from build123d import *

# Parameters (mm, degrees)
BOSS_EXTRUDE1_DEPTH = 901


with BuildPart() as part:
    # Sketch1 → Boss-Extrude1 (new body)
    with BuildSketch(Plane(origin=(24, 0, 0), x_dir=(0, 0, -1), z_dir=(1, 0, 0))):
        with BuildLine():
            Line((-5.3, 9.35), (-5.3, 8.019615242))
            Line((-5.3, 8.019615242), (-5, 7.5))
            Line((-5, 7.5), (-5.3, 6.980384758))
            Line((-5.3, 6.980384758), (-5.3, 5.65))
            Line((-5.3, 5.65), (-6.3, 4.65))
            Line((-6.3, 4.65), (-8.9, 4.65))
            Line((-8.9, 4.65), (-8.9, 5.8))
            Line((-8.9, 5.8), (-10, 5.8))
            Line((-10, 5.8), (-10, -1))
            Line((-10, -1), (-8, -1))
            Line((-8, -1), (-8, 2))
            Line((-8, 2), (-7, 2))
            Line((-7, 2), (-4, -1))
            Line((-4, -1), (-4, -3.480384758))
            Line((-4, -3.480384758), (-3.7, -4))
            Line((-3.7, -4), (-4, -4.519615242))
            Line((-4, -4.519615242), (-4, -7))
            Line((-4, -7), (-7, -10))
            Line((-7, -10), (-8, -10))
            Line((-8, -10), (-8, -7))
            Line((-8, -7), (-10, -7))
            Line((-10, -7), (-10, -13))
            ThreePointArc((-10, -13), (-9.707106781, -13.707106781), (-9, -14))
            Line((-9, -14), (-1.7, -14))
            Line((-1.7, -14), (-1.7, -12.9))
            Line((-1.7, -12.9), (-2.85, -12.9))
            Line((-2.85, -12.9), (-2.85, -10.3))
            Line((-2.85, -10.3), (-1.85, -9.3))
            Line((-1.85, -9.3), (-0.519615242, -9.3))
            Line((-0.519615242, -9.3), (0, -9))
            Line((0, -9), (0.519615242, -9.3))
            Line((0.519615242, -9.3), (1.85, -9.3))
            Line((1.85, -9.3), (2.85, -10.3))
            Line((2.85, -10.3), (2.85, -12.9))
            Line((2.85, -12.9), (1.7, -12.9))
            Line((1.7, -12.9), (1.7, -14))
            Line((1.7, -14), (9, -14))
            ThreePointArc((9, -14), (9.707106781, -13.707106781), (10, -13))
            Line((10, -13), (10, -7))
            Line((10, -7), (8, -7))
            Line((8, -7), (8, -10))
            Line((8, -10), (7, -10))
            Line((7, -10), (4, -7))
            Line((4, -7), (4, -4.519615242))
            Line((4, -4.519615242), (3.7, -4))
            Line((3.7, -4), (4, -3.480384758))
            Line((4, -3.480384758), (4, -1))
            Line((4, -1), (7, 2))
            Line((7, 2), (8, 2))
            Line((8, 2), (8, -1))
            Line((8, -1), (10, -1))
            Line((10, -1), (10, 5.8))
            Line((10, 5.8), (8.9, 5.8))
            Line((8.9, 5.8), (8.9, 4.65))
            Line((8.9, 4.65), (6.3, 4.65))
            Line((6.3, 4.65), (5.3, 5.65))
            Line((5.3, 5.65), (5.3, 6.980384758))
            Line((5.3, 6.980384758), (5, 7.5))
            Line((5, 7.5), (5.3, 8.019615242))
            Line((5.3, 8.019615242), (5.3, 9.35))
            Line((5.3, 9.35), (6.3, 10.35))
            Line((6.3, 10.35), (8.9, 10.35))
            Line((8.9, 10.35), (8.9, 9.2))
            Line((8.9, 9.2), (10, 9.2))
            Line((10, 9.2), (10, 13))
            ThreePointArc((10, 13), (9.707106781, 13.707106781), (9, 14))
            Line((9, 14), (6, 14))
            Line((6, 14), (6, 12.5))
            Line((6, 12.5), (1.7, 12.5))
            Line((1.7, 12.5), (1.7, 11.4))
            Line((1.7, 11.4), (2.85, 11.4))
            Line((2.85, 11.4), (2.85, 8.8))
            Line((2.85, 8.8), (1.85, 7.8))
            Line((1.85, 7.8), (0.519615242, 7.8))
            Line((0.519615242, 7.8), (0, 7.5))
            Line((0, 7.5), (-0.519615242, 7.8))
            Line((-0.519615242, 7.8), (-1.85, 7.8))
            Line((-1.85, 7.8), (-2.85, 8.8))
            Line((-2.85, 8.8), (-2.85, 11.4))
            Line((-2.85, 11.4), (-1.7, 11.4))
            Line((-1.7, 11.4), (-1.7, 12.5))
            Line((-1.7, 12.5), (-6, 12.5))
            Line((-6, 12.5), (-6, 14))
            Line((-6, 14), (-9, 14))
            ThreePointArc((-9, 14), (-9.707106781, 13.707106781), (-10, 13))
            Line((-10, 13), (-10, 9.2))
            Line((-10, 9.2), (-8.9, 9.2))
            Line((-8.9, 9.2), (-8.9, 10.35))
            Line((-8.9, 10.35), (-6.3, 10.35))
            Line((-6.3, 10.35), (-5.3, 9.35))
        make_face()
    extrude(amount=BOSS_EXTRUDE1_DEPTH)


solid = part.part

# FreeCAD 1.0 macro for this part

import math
import FreeCAD as App
import Part
import Sketcher
Q = App.Units.Quantity

doc = App.newDocument("Part")
body = doc.addObject("PartDesign::Body", "Body")

# Sketch on YZ plane
sketch1 = body.newObject("Sketcher::SketchObject", "Sketch")
sketch1.AttachmentSupport = (doc.getObject("YZ_Plane"), [""])
sketch1.MapMode = "FlatFace"
sketch1.AttachmentOffset = App.Placement(App.Vector(0, 0, 24), App.Rotation())
sketch1.addGeometry(Part.LineSegment(App.Vector(9.3, 5.3, 0), App.Vector(8, 5.3, 0)), False)
sketch1.addGeometry(Part.LineSegment(App.Vector(8, 5.3, 0), App.Vector(7.5, 5, 0)), False)
sketch1.addGeometry(Part.LineSegment(App.Vector(7.5, 5, 0), App.Vector(7, 5.3, 0)), False)
sketch1.addGeometry(Part.LineSegment(App.Vector(7, 5.3, 0), App.Vector(5.7, 5.3, 0)), False)
sketch1.addGeometry(Part.LineSegment(App.Vector(5.7, 5.3, 0), App.Vector(4.7, 6.3, 0)), False)
sketch1.addGeometry(Part.LineSegment(App.Vector(4.7, 6.3, 0), App.Vector(4.7, 8.9, 0)), False)
sketch1.addGeometry(Part.LineSegment(App.Vector(4.7, 8.9, 0), App.Vector(5.8, 8.9, 0)), False)
sketch1.addGeometry(Part.LineSegment(App.Vector(5.8, 8.9, 0), App.Vector(5.8, 10, 0)), False)
sketch1.addGeometry(Part.LineSegment(App.Vector(5.8, 10, 0), App.Vector(-1, 10, 0)), False)
sketch1.addGeometry(Part.LineSegment(App.Vector(-1, 10, 0), App.Vector(-1, 8, 0)), False)
sketch1.addGeometry(Part.LineSegment(App.Vector(-1, 8, 0), App.Vector(2, 8, 0)), False)
sketch1.addGeometry(Part.LineSegment(App.Vector(2, 8, 0), App.Vector(2, 7, 0)), False)
sketch1.addGeometry(Part.LineSegment(App.Vector(2, 7, 0), App.Vector(-1, 4, 0)), False)
sketch1.addGeometry(Part.LineSegment(App.Vector(-1, 4, 0), App.Vector(-3.5, 4, 0)), False)
sketch1.addGeometry(Part.LineSegment(App.Vector(-3.5, 4, 0), App.Vector(-4, 3.7, 0)), False)
sketch1.addGeometry(Part.LineSegment(App.Vector(-4, 3.7, 0), App.Vector(-4.5, 4, 0)), False)
sketch1.addGeometry(Part.LineSegment(App.Vector(-4.5, 4, 0), App.Vector(-7, 4, 0)), False)
sketch1.addGeometry(Part.LineSegment(App.Vector(-7, 4, 0), App.Vector(-10, 7, 0)), False)
sketch1.addGeometry(Part.LineSegment(App.Vector(-10, 7, 0), App.Vector(-10, 8, 0)), False)
sketch1.addGeometry(Part.LineSegment(App.Vector(-10, 8, 0), App.Vector(-7, 8, 0)), False)
sketch1.addGeometry(Part.LineSegment(App.Vector(-7, 8, 0), App.Vector(-7, 10, 0)), False)
sketch1.addGeometry(Part.LineSegment(App.Vector(-7, 10, 0), App.Vector(-13, 10, 0)), False)
sketch1.addGeometry(Part.ArcOfCircle(Part.Circle(App.Vector(-13, 9, 0), App.Vector(0, 0, 1), 1), math.radians(90), math.radians(180)), False)
sketch1.addGeometry(Part.LineSegment(App.Vector(-14, 9, 0), App.Vector(-14, 1.7, 0)), False)
sketch1.addGeometry(Part.LineSegment(App.Vector(-14, 1.7, 0), App.Vector(-12.9, 1.7, 0)), False)
sketch1.addGeometry(Part.LineSegment(App.Vector(-12.9, 1.7, 0), App.Vector(-12.9, 2.9, 0)), False)
sketch1.addGeometry(Part.LineSegment(App.Vector(-12.9, 2.9, 0), App.Vector(-10.3, 2.9, 0)), False)
sketch1.addGeometry(Part.LineSegment(App.Vector(-10.3, 2.9, 0), App.Vector(-9.3, 1.9, 0)), False)
sketch1.addGeometry(Part.LineSegment(App.Vector(-9.3, 1.9, 0), App.Vector(-9.3, 0.5, 0)), False)
sketch1.addGeometry(Part.LineSegment(App.Vector(-9.3, 0.5, 0), App.Vector(-9, 0, 0)), False)
sketch1.addGeometry(Part.LineSegment(App.Vector(-9, 0, 0), App.Vector(-9.3, -0.5, 0)), False)
sketch1.addGeometry(Part.LineSegment(App.Vector(-9.3, -0.5, 0), App.Vector(-9.3, -1.9, 0)), False)
sketch1.addGeometry(Part.LineSegment(App.Vector(-9.3, -1.9, 0), App.Vector(-10.3, -2.9, 0)), False)
sketch1.addGeometry(Part.LineSegment(App.Vector(-10.3, -2.9, 0), App.Vector(-12.9, -2.9, 0)), False)
sketch1.addGeometry(Part.LineSegment(App.Vector(-12.9, -2.9, 0), App.Vector(-12.9, -1.7, 0)), False)
sketch1.addGeometry(Part.LineSegment(App.Vector(-12.9, -1.7, 0), App.Vector(-14, -1.7, 0)), False)
sketch1.addGeometry(Part.LineSegment(App.Vector(-14, -1.7, 0), App.Vector(-14, -9, 0)), False)
sketch1.addGeometry(Part.ArcOfCircle(Part.Circle(App.Vector(-13, -9, 0), App.Vector(0, 0, 1), 1), math.radians(-180), math.radians(-90)), False)
sketch1.addGeometry(Part.LineSegment(App.Vector(-13, -10, 0), App.Vector(-7, -10, 0)), False)
sketch1.addGeometry(Part.LineSegment(App.Vector(-7, -10, 0), App.Vector(-7, -8, 0)), False)
sketch1.addGeometry(Part.LineSegment(App.Vector(-7, -8, 0), App.Vector(-10, -8, 0)), False)
sketch1.addGeometry(Part.LineSegment(App.Vector(-10, -8, 0), App.Vector(-10, -7, 0)), False)
sketch1.addGeometry(Part.LineSegment(App.Vector(-10, -7, 0), App.Vector(-7, -4, 0)), False)
sketch1.addGeometry(Part.LineSegment(App.Vector(-7, -4, 0), App.Vector(-4.5, -4, 0)), False)
sketch1.addGeometry(Part.LineSegment(App.Vector(-4.5, -4, 0), App.Vector(-4, -3.7, 0)), False)
sketch1.addGeometry(Part.LineSegment(App.Vector(-4, -3.7, 0), App.Vector(-3.5, -4, 0)), False)
sketch1.addGeometry(Part.LineSegment(App.Vector(-3.5, -4, 0), App.Vector(-1, -4, 0)), False)
sketch1.addGeometry(Part.LineSegment(App.Vector(-1, -4, 0), App.Vector(2, -7, 0)), False)
sketch1.addGeometry(Part.LineSegment(App.Vector(2, -7, 0), App.Vector(2, -8, 0)), False)
sketch1.addGeometry(Part.LineSegment(App.Vector(2, -8, 0), App.Vector(-1, -8, 0)), False)
sketch1.addGeometry(Part.LineSegment(App.Vector(-1, -8, 0), App.Vector(-1, -10, 0)), False)
sketch1.addGeometry(Part.LineSegment(App.Vector(-1, -10, 0), App.Vector(5.8, -10, 0)), False)
sketch1.addGeometry(Part.LineSegment(App.Vector(5.8, -10, 0), App.Vector(5.8, -8.9, 0)), False)
sketch1.addGeometry(Part.LineSegment(App.Vector(5.8, -8.9, 0), App.Vector(4.7, -8.9, 0)), False)
sketch1.addGeometry(Part.LineSegment(App.Vector(4.7, -8.9, 0), App.Vector(4.7, -6.3, 0)), False)
sketch1.addGeometry(Part.LineSegment(App.Vector(4.7, -6.3, 0), App.Vector(5.7, -5.3, 0)), False)
sketch1.addGeometry(Part.LineSegment(App.Vector(5.7, -5.3, 0), App.Vector(7, -5.3, 0)), False)
sketch1.addGeometry(Part.LineSegment(App.Vector(7, -5.3, 0), App.Vector(7.5, -5, 0)), False)
sketch1.addGeometry(Part.LineSegment(App.Vector(7.5, -5, 0), App.Vector(8, -5.3, 0)), False)
sketch1.addGeometry(Part.LineSegment(App.Vector(8, -5.3, 0), App.Vector(9.3, -5.3, 0)), False)
sketch1.addGeometry(Part.LineSegment(App.Vector(9.3, -5.3, 0), App.Vector(10.3, -6.3, 0)), False)
sketch1.addGeometry(Part.LineSegment(App.Vector(10.3, -6.3, 0), App.Vector(10.3, -8.9, 0)), False)
sketch1.addGeometry(Part.LineSegment(App.Vector(10.3, -8.9, 0), App.Vector(9.2, -8.9, 0)), False)
sketch1.addGeometry(Part.LineSegment(App.Vector(9.2, -8.9, 0), App.Vector(9.2, -10, 0)), False)
sketch1.addGeometry(Part.LineSegment(App.Vector(9.2, -10, 0), App.Vector(13, -10, 0)), False)
sketch1.addGeometry(Part.ArcOfCircle(Part.Circle(App.Vector(13, -9, 0), App.Vector(0, 0, 1), 1), math.radians(-90), math.radians(0)), False)
sketch1.addGeometry(Part.LineSegment(App.Vector(14, -9, 0), App.Vector(14, -6, 0)), False)
sketch1.addGeometry(Part.LineSegment(App.Vector(14, -6, 0), App.Vector(12.5, -6, 0)), False)
sketch1.addGeometry(Part.LineSegment(App.Vector(12.5, -6, 0), App.Vector(12.5, -1.7, 0)), False)
sketch1.addGeometry(Part.LineSegment(App.Vector(12.5, -1.7, 0), App.Vector(11.4, -1.7, 0)), False)
sketch1.addGeometry(Part.LineSegment(App.Vector(11.4, -1.7, 0), App.Vector(11.4, -2.9, 0)), False)
sketch1.addGeometry(Part.LineSegment(App.Vector(11.4, -2.9, 0), App.Vector(8.8, -2.9, 0)), False)
sketch1.addGeometry(Part.LineSegment(App.Vector(8.8, -2.9, 0), App.Vector(7.8, -1.9, 0)), False)
sketch1.addGeometry(Part.LineSegment(App.Vector(7.8, -1.9, 0), App.Vector(7.8, -0.5, 0)), False)
sketch1.addGeometry(Part.LineSegment(App.Vector(7.8, -0.5, 0), App.Vector(7.5, 0, 0)), False)
sketch1.addGeometry(Part.LineSegment(App.Vector(7.5, 0, 0), App.Vector(7.8, 0.5, 0)), False)
sketch1.addGeometry(Part.LineSegment(App.Vector(7.8, 0.5, 0), App.Vector(7.8, 1.9, 0)), False)
sketch1.addGeometry(Part.LineSegment(App.Vector(7.8, 1.9, 0), App.Vector(8.8, 2.9, 0)), False)
sketch1.addGeometry(Part.LineSegment(App.Vector(8.8, 2.9, 0), App.Vector(11.4, 2.9, 0)), False)
sketch1.addGeometry(Part.LineSegment(App.Vector(11.4, 2.9, 0), App.Vector(11.4, 1.7, 0)), False)
sketch1.addGeometry(Part.LineSegment(App.Vector(11.4, 1.7, 0), App.Vector(12.5, 1.7, 0)), False)
sketch1.addGeometry(Part.LineSegment(App.Vector(12.5, 1.7, 0), App.Vector(12.5, 6, 0)), False)
sketch1.addGeometry(Part.LineSegment(App.Vector(12.5, 6, 0), App.Vector(14, 6, 0)), False)
sketch1.addGeometry(Part.LineSegment(App.Vector(14, 6, 0), App.Vector(14, 9, 0)), False)
sketch1.addGeometry(Part.ArcOfCircle(Part.Circle(App.Vector(13, 9, 0), App.Vector(0, 0, 1), 1), math.radians(0), math.radians(90)), False)
sketch1.addGeometry(Part.LineSegment(App.Vector(13, 10, 0), App.Vector(9.2, 10, 0)), False)
sketch1.addGeometry(Part.LineSegment(App.Vector(9.2, 10, 0), App.Vector(9.2, 8.9, 0)), False)
sketch1.addGeometry(Part.LineSegment(App.Vector(9.2, 8.9, 0), App.Vector(10.3, 8.9, 0)), False)
sketch1.addGeometry(Part.LineSegment(App.Vector(10.3, 8.9, 0), App.Vector(10.3, 6.3, 0)), False)
sketch1.addGeometry(Part.LineSegment(App.Vector(10.3, 6.3, 0), App.Vector(9.3, 5.3, 0)), False)
sketch1.addConstraint(Sketcher.Constraint("Coincident", 0, 2, 1, 1))
sketch1.addConstraint(Sketcher.Constraint("Coincident", 1, 2, 2, 1))
sketch1.addConstraint(Sketcher.Constraint("Coincident", 2, 2, 3, 1))
sketch1.addConstraint(Sketcher.Constraint("Coincident", 3, 2, 4, 1))
sketch1.addConstraint(Sketcher.Constraint("Coincident", 4, 2, 5, 1))
sketch1.addConstraint(Sketcher.Constraint("Coincident", 5, 2, 6, 1))
sketch1.addConstraint(Sketcher.Constraint("Coincident", 6, 2, 7, 1))
sketch1.addConstraint(Sketcher.Constraint("Coincident", 7, 2, 8, 1))
sketch1.addConstraint(Sketcher.Constraint("Coincident", 8, 2, 9, 1))
sketch1.addConstraint(Sketcher.Constraint("Coincident", 9, 2, 10, 1))
sketch1.addConstraint(Sketcher.Constraint("Coincident", 10, 2, 11, 1))
sketch1.addConstraint(Sketcher.Constraint("Coincident", 11, 2, 12, 1))
sketch1.addConstraint(Sketcher.Constraint("Coincident", 12, 2, 13, 1))
sketch1.addConstraint(Sketcher.Constraint("Coincident", 13, 2, 14, 1))
sketch1.addConstraint(Sketcher.Constraint("Coincident", 14, 2, 15, 1))
sketch1.addConstraint(Sketcher.Constraint("Coincident", 15, 2, 16, 1))
sketch1.addConstraint(Sketcher.Constraint("Coincident", 16, 2, 17, 1))
sketch1.addConstraint(Sketcher.Constraint("Coincident", 17, 2, 18, 1))
sketch1.addConstraint(Sketcher.Constraint("Coincident", 18, 2, 19, 1))
sketch1.addConstraint(Sketcher.Constraint("Coincident", 19, 2, 20, 1))
sketch1.addConstraint(Sketcher.Constraint("Coincident", 20, 2, 21, 1))
sketch1.addConstraint(Sketcher.Constraint("Tangent", 21, 2, 22, 1))
sketch1.addConstraint(Sketcher.Constraint("Tangent", 22, 2, 23, 1))
sketch1.addConstraint(Sketcher.Constraint("Coincident", 23, 2, 24, 1))
sketch1.addConstraint(Sketcher.Constraint("Coincident", 24, 2, 25, 1))
sketch1.addConstraint(Sketcher.Constraint("Coincident", 25, 2, 26, 1))
sketch1.addConstraint(Sketcher.Constraint("Coincident", 26, 2, 27, 1))
sketch1.addConstraint(Sketcher.Constraint("Coincident", 27, 2, 28, 1))
sketch1.addConstraint(Sketcher.Constraint("Coincident", 28, 2, 29, 1))
sketch1.addConstraint(Sketcher.Constraint("Coincident", 29, 2, 30, 1))
sketch1.addConstraint(Sketcher.Constraint("Coincident", 30, 2, 31, 1))
sketch1.addConstraint(Sketcher.Constraint("Coincident", 31, 2, 32, 1))
sketch1.addConstraint(Sketcher.Constraint("Coincident", 32, 2, 33, 1))
sketch1.addConstraint(Sketcher.Constraint("Coincident", 33, 2, 34, 1))
sketch1.addConstraint(Sketcher.Constraint("Coincident", 34, 2, 35, 1))
sketch1.addConstraint(Sketcher.Constraint("Coincident", 35, 2, 36, 1))
sketch1.addConstraint(Sketcher.Constraint("Tangent", 36, 2, 37, 1))
sketch1.addConstraint(Sketcher.Constraint("Tangent", 37, 2, 38, 1))
sketch1.addConstraint(Sketcher.Constraint("Coincident", 38, 2, 39, 1))
sketch1.addConstraint(Sketcher.Constraint("Coincident", 39, 2, 40, 1))
sketch1.addConstraint(Sketcher.Constraint("Coincident", 40, 2, 41, 1))
sketch1.addConstraint(Sketcher.Constraint("Coincident", 41, 2, 42, 1))
sketch1.addConstraint(Sketcher.Constraint("Coincident", 42, 2, 43, 1))
sketch1.addConstraint(Sketcher.Constraint("Coincident", 43, 2, 44, 1))
sketch1.addConstraint(Sketcher.Constraint("Coincident", 44, 2, 45, 1))
sketch1.addConstraint(Sketcher.Constraint("Coincident", 45, 2, 46, 1))
sketch1.addConstraint(Sketcher.Constraint("Coincident", 46, 2, 47, 1))
sketch1.addConstraint(Sketcher.Constraint("Coincident", 47, 2, 48, 1))
sketch1.addConstraint(Sketcher.Constraint("Coincident", 48, 2, 49, 1))
sketch1.addConstraint(Sketcher.Constraint("Coincident", 49, 2, 50, 1))
sketch1.addConstraint(Sketcher.Constraint("Coincident", 50, 2, 51, 1))
sketch1.addConstraint(Sketcher.Constraint("Coincident", 51, 2, 52, 1))
sketch1.addConstraint(Sketcher.Constraint("Coincident", 52, 2, 53, 1))
sketch1.addConstraint(Sketcher.Constraint("Coincident", 53, 2, 54, 1))
sketch1.addConstraint(Sketcher.Constraint("Coincident", 54, 2, 55, 1))
sketch1.addConstraint(Sketcher.Constraint("Coincident", 55, 2, 56, 1))
sketch1.addConstraint(Sketcher.Constraint("Coincident", 56, 2, 57, 1))
sketch1.addConstraint(Sketcher.Constraint("Coincident", 57, 2, 58, 1))
sketch1.addConstraint(Sketcher.Constraint("Coincident", 58, 2, 59, 1))
sketch1.addConstraint(Sketcher.Constraint("Coincident", 59, 2, 60, 1))
sketch1.addConstraint(Sketcher.Constraint("Coincident", 60, 2, 61, 1))
sketch1.addConstraint(Sketcher.Constraint("Coincident", 61, 2, 62, 1))
sketch1.addConstraint(Sketcher.Constraint("Coincident", 62, 2, 63, 1))
sketch1.addConstraint(Sketcher.Constraint("Coincident", 63, 2, 64, 1))
sketch1.addConstraint(Sketcher.Constraint("Tangent", 64, 2, 65, 1))
sketch1.addConstraint(Sketcher.Constraint("Tangent", 65, 2, 66, 1))
sketch1.addConstraint(Sketcher.Constraint("Coincident", 66, 2, 67, 1))
sketch1.addConstraint(Sketcher.Constraint("Coincident", 67, 2, 68, 1))
sketch1.addConstraint(Sketcher.Constraint("Coincident", 68, 2, 69, 1))
sketch1.addConstraint(Sketcher.Constraint("Coincident", 69, 2, 70, 1))
sketch1.addConstraint(Sketcher.Constraint("Coincident", 70, 2, 71, 1))
sketch1.addConstraint(Sketcher.Constraint("Coincident", 71, 2, 72, 1))
sketch1.addConstraint(Sketcher.Constraint("Coincident", 72, 2, 73, 1))
sketch1.addConstraint(Sketcher.Constraint("Coincident", 73, 2, 74, 1))
sketch1.addConstraint(Sketcher.Constraint("Coincident", 74, 2, 75, 1))
sketch1.addConstraint(Sketcher.Constraint("Coincident", 75, 2, 76, 1))
sketch1.addConstraint(Sketcher.Constraint("Coincident", 76, 2, 77, 1))
sketch1.addConstraint(Sketcher.Constraint("Coincident", 77, 2, 78, 1))
sketch1.addConstraint(Sketcher.Constraint("Coincident", 78, 2, 79, 1))
sketch1.addConstraint(Sketcher.Constraint("Coincident", 79, 2, 80, 1))
sketch1.addConstraint(Sketcher.Constraint("Coincident", 80, 2, 81, 1))
sketch1.addConstraint(Sketcher.Constraint("Coincident", 81, 2, 82, 1))
sketch1.addConstraint(Sketcher.Constraint("Coincident", 82, 2, 83, 1))
sketch1.addConstraint(Sketcher.Constraint("Tangent", 83, 2, 84, 1))
sketch1.addConstraint(Sketcher.Constraint("Tangent", 84, 2, 85, 1))
sketch1.addConstraint(Sketcher.Constraint("Coincident", 85, 2, 86, 1))
sketch1.addConstraint(Sketcher.Constraint("Coincident", 86, 2, 87, 1))
sketch1.addConstraint(Sketcher.Constraint("Coincident", 87, 2, 88, 1))
sketch1.addConstraint(Sketcher.Constraint("Coincident", 88, 2, 89, 1))
sketch1.addConstraint(Sketcher.Constraint("Coincident", 89, 2, 0, 1))
sketch1.addConstraint(Sketcher.Constraint("Horizontal", 0))
sketch1.addConstraint(Sketcher.Constraint("Horizontal", 3))
sketch1.addConstraint(Sketcher.Constraint("Vertical", 5))
sketch1.addConstraint(Sketcher.Constraint("Horizontal", 6))
sketch1.addConstraint(Sketcher.Constraint("Vertical", 7))
sketch1.addConstraint(Sketcher.Constraint("Horizontal", 8))
sketch1.addConstraint(Sketcher.Constraint("Vertical", 9))
sketch1.addConstraint(Sketcher.Constraint("Horizontal", 10))
sketch1.addConstraint(Sketcher.Constraint("Vertical", 11))
sketch1.addConstraint(Sketcher.Constraint("Horizontal", 13))
sketch1.addConstraint(Sketcher.Constraint("Horizontal", 16))
sketch1.addConstraint(Sketcher.Constraint("Vertical", 18))
sketch1.addConstraint(Sketcher.Constraint("Horizontal", 19))
sketch1.addConstraint(Sketcher.Constraint("Vertical", 20))
sketch1.addConstraint(Sketcher.Constraint("Horizontal", 21))
sketch1.addConstraint(Sketcher.Constraint("Vertical", 23))
sketch1.addConstraint(Sketcher.Constraint("Horizontal", 24))
sketch1.addConstraint(Sketcher.Constraint("Vertical", 25))
sketch1.addConstraint(Sketcher.Constraint("Horizontal", 26))
sketch1.addConstraint(Sketcher.Constraint("Vertical", 28))
sketch1.addConstraint(Sketcher.Constraint("Vertical", 31))
sketch1.addConstraint(Sketcher.Constraint("Horizontal", 33))
sketch1.addConstraint(Sketcher.Constraint("Vertical", 34))
sketch1.addConstraint(Sketcher.Constraint("Horizontal", 35))
sketch1.addConstraint(Sketcher.Constraint("Vertical", 36))
sketch1.addConstraint(Sketcher.Constraint("Horizontal", 38))
sketch1.addConstraint(Sketcher.Constraint("Vertical", 39))
sketch1.addConstraint(Sketcher.Constraint("Horizontal", 40))
sketch1.addConstraint(Sketcher.Constraint("Vertical", 41))
sketch1.addConstraint(Sketcher.Constraint("Horizontal", 43))
sketch1.addConstraint(Sketcher.Constraint("Horizontal", 46))
sketch1.addConstraint(Sketcher.Constraint("Vertical", 48))
sketch1.addConstraint(Sketcher.Constraint("Horizontal", 49))
sketch1.addConstraint(Sketcher.Constraint("Vertical", 50))
sketch1.addConstraint(Sketcher.Constraint("Horizontal", 51))
sketch1.addConstraint(Sketcher.Constraint("Vertical", 52))
sketch1.addConstraint(Sketcher.Constraint("Horizontal", 53))
sketch1.addConstraint(Sketcher.Constraint("Vertical", 54))
sketch1.addConstraint(Sketcher.Constraint("Horizontal", 56))
sketch1.addConstraint(Sketcher.Constraint("Horizontal", 59))
sketch1.addConstraint(Sketcher.Constraint("Vertical", 61))
sketch1.addConstraint(Sketcher.Constraint("Horizontal", 62))
sketch1.addConstraint(Sketcher.Constraint("Vertical", 63))
sketch1.addConstraint(Sketcher.Constraint("Horizontal", 64))
sketch1.addConstraint(Sketcher.Constraint("Vertical", 66))
sketch1.addConstraint(Sketcher.Constraint("Horizontal", 67))
sketch1.addConstraint(Sketcher.Constraint("Vertical", 68))
sketch1.addConstraint(Sketcher.Constraint("Horizontal", 69))
sketch1.addConstraint(Sketcher.Constraint("Vertical", 70))
sketch1.addConstraint(Sketcher.Constraint("Horizontal", 71))
sketch1.addConstraint(Sketcher.Constraint("Vertical", 73))
sketch1.addConstraint(Sketcher.Constraint("Vertical", 76))
sketch1.addConstraint(Sketcher.Constraint("Horizontal", 78))
sketch1.addConstraint(Sketcher.Constraint("Vertical", 79))
sketch1.addConstraint(Sketcher.Constraint("Horizontal", 80))
sketch1.addConstraint(Sketcher.Constraint("Vertical", 81))
sketch1.addConstraint(Sketcher.Constraint("Horizontal", 82))
sketch1.addConstraint(Sketcher.Constraint("Vertical", 83))
sketch1.addConstraint(Sketcher.Constraint("Horizontal", 85))
sketch1.addConstraint(Sketcher.Constraint("Vertical", 86))
sketch1.addConstraint(Sketcher.Constraint("Horizontal", 87))
sketch1.addConstraint(Sketcher.Constraint("Vertical", 88))
sketch1.addConstraint(Sketcher.Constraint("Equal", 22, 37))
sketch1.addConstraint(Sketcher.Constraint("Equal", 37, 65))
sketch1.addConstraint(Sketcher.Constraint("Equal", 65, 84))
sketch1.addConstraint(Sketcher.Constraint("Symmetric", 22, 3, 65, 3, -1, 1))
sketch1.addConstraint(Sketcher.Constraint("Symmetric", 37, 3, 84, 3, -1, 1))
sketch1.addConstraint(Sketcher.Constraint("Symmetric", 37, 3, 65, 3, -2))
sketch1.addConstraint(Sketcher.Constraint("Symmetric", 28, 2, 30, 2, -1))
sketch1.addConstraint(Sketcher.Constraint("Symmetric", 26, 2, 32, 2, -1))
sketch1.addConstraint(Sketcher.Constraint("Symmetric", 24, 2, 34, 2, -1))
sketch1.addConstraint(Sketcher.Constraint("Symmetric", 19, 2, 39, 2, -1))
sketch1.addConstraint(Sketcher.Constraint("Symmetric", 17, 2, 41, 2, -1))
sketch1.addConstraint(Sketcher.Constraint("Symmetric", 16, 2, 42, 2, -1))
sketch1.addConstraint(Sketcher.Constraint("Symmetric", 14, 2, 44, 2, -1))
sketch1.addConstraint(Sketcher.Constraint("Symmetric", 13, 2, 45, 2, -1))
sketch1.addConstraint(Sketcher.Constraint("Symmetric", 11, 2, 47, 2, -1))
sketch1.addConstraint(Sketcher.Constraint("Symmetric", 9, 2, 49, 2, -1))
sketch1.addConstraint(Sketcher.Constraint("Symmetric", 7, 2, 51, 2, -1))
sketch1.addConstraint(Sketcher.Constraint("Symmetric", 5, 2, 53, 2, -1))
sketch1.addConstraint(Sketcher.Constraint("Symmetric", 3, 2, 55, 2, -1))
sketch1.addConstraint(Sketcher.Constraint("Symmetric", 1, 2, 57, 2, -1))
sketch1.addConstraint(Sketcher.Constraint("Symmetric", 0, 2, 58, 2, -1))
sketch1.addConstraint(Sketcher.Constraint("Symmetric", 73, 2, 75, 2, -1))
sketch1.addConstraint(Sketcher.Constraint("Symmetric", 71, 2, 77, 2, -1))
sketch1.addConstraint(Sketcher.Constraint("Symmetric", 69, 2, 79, 2, -1))
sketch1.addConstraint(Sketcher.Constraint("Symmetric", 67, 2, 81, 2, -1))
sketch1.addConstraint(Sketcher.Constraint("Symmetric", 62, 2, 86, 2, -1))
sketch1.addConstraint(Sketcher.Constraint("Symmetric", 60, 2, 88, 2, -1))
sketch1.addConstraint(Sketcher.Constraint("PointOnObject", 29, 2, -1))
sketch1.addConstraint(Sketcher.Constraint("PointOnObject", 74, 2, -1))
sketch1.addConstraint(Sketcher.Constraint("Perpendicular", 4, 12))
sketch1.addConstraint(Sketcher.Constraint("Parallel", 1, 14))
sketch1.addConstraint(Sketcher.Constraint("Parallel", 2, 15))
sketch1.addConstraint(Sketcher.Constraint("Perpendicular", 12, 17))
sketch1.addConstraint(Sketcher.Constraint("Parallel", 17, 27))
sketch1.addConstraint(Sketcher.Constraint("Perpendicular", 14, 29))
sketch1.addConstraint(Sketcher.Constraint("Perpendicular", 15, 30))
sketch1.addConstraint(Sketcher.Constraint("Perpendicular", 27, 32))
sketch1.addConstraint(Sketcher.Constraint("Parallel", 32, 42))
sketch1.addConstraint(Sketcher.Constraint("Perpendicular", 29, 44))
sketch1.addConstraint(Sketcher.Constraint("Perpendicular", 42, 47))
sketch1.addConstraint(Sketcher.Constraint("Perpendicular", 47, 55))
sketch1.addConstraint(Sketcher.Constraint("Parallel", 44, 57))
sketch1.addConstraint(Sketcher.Constraint("Perpendicular", 55, 60))
sketch1.addConstraint(Sketcher.Constraint("Parallel", 60, 72))
sketch1.addConstraint(Sketcher.Constraint("Perpendicular", 57, 74))
sketch1.addConstraint(Sketcher.Constraint("Perpendicular", 72, 77))
sketch1.addConstraint(Sketcher.Constraint("Parallel", 77, 89))
sketch1.addConstraint(Sketcher.Constraint("Horizontal", 0, 2, 2, 2))
sketch1.addConstraint(Sketcher.Constraint("Horizontal", 13, 2, 15, 2))
sketch1.addConstraint(Sketcher.Constraint("Horizontal", 11, 2, 17, 2))
sketch1.addConstraint(Sketcher.Constraint("Horizontal", 10, 2, 18, 2))
sketch1.addConstraint(Sketcher.Constraint("Horizontal", 8, 2, 20, 2))
sketch1.addConstraint(Sketcher.Constraint("Horizontal", 54, 2, 60, 2))
sketch1.addConstraint(Sketcher.Constraint("Horizontal", 53, 2, 61, 2))
sketch1.addConstraint(Sketcher.Constraint("Horizontal", 35, 2, 68, 2))
sketch1.addConstraint(Sketcher.Constraint("Horizontal", 33, 2, 70, 2))
sketch1.addConstraint(Sketcher.Constraint("Horizontal", 31, 2, 72, 2))
sketch1.addConstraint(Sketcher.Constraint("Horizontal", 30, 2, 73, 2))
sketch1.addConstraint(Sketcher.Constraint("Vertical", 9, 2, 12, 2))
sketch1.addConstraint(Sketcher.Constraint("Vertical", 16, 2, 19, 2))
sketch1.addConstraint(Sketcher.Constraint("Vertical", 57, 2, 74, 2))
sketch1.addConstraint(Sketcher.Constraint("Equal", 0, 3))
sketch1.addConstraint(Sketcher.Constraint("Equal", 13, 16))
sketch1.addConstraint(Sketcher.Constraint("Equal", 53, 62))
sketch1.addConstraint(Sketcher.Constraint("Equal", 35, 69))
sketch1.addConstraint(Sketcher.Constraint("Equal", 33, 71))
sketch1.addConstraint(Sketcher.Constraint("Equal", 78, 5))
sketch1.addConstraint(Sketcher.Constraint("Equal", 80, 7))
sketch1.addConstraint(Sketcher.Constraint("Equal", 87, 25))
sketch1.addConstraint(Sketcher.Constraint("Equal", 59, 28))
sketch1.addConstraint(Sketcher.Constraint("Equal", 49, 66))
sketch1.addConstraint(Sketcher.Constraint("Equal", 2, 14))
sketch1.addConstraint(Sketcher.Constraint("Equal", 4, 27))
sketch1.addConstraint(Sketcher.Constraint("Equal", 15, 29))
sketch1.addConstraint(Sketcher.Constraint("Radius", 22, 1.0))
sketch1.addConstraint(Sketcher.Constraint("DistanceX", 10, 1, 10, 2, 3.0))
sketch1.addConstraint(Sketcher.Constraint("DistanceX", 21, 2, 21, 1, 6.0))
sketch1.addConstraint(Sketcher.Constraint("DistanceY", 9, 2, 9, 1, 2.0))
sketch1.addConstraint(Sketcher.Constraint("DistanceY", 11, 2, 11, 1, 1.0))
sketch1.addConstraint(Sketcher.Constraint("Angle", 1, Q("-150 deg")))
sketch1.addConstraint(Sketcher.Constraint("DistanceX", 8, 2, 8, 1, 6.8))
sketch1.addConstraint(Sketcher.Constraint("DistanceX", 24, 1, 24, 2, 1.1))
sketch1.addConstraint(Sketcher.Constraint("DistanceX", 26, 1, 26, 2, 2.6))
sketch1.addConstraint(Sketcher.Constraint("DistanceX", 64, 1, 64, 2, 3.8))
sketch1.addConstraint(Sketcher.Constraint("DistanceX", 67, 2, 67, 1, 1.5))
sketch1.addConstraint(Sketcher.Constraint("DistanceY", 23, 2, 23, 1, 7.3))
sketch1.addConstraint(Sketcher.Constraint("DistanceX", 22, 3, -1, 1, 13.0))
sketch1.addConstraint(Sketcher.Constraint("DistanceY", -1, 1, 22, 3, 9.0))
sketch1.addConstraint(Sketcher.Constraint("Distance", 1, 0.6))
sketch1.addConstraint(Sketcher.Constraint("DistanceX", 6, 1, 6, 2, 1.15))
pad1 = body.newObject("PartDesign::Pad", "Pad")
pad1.Profile = sketch1
pad1.Length = 901

doc.recompute()
